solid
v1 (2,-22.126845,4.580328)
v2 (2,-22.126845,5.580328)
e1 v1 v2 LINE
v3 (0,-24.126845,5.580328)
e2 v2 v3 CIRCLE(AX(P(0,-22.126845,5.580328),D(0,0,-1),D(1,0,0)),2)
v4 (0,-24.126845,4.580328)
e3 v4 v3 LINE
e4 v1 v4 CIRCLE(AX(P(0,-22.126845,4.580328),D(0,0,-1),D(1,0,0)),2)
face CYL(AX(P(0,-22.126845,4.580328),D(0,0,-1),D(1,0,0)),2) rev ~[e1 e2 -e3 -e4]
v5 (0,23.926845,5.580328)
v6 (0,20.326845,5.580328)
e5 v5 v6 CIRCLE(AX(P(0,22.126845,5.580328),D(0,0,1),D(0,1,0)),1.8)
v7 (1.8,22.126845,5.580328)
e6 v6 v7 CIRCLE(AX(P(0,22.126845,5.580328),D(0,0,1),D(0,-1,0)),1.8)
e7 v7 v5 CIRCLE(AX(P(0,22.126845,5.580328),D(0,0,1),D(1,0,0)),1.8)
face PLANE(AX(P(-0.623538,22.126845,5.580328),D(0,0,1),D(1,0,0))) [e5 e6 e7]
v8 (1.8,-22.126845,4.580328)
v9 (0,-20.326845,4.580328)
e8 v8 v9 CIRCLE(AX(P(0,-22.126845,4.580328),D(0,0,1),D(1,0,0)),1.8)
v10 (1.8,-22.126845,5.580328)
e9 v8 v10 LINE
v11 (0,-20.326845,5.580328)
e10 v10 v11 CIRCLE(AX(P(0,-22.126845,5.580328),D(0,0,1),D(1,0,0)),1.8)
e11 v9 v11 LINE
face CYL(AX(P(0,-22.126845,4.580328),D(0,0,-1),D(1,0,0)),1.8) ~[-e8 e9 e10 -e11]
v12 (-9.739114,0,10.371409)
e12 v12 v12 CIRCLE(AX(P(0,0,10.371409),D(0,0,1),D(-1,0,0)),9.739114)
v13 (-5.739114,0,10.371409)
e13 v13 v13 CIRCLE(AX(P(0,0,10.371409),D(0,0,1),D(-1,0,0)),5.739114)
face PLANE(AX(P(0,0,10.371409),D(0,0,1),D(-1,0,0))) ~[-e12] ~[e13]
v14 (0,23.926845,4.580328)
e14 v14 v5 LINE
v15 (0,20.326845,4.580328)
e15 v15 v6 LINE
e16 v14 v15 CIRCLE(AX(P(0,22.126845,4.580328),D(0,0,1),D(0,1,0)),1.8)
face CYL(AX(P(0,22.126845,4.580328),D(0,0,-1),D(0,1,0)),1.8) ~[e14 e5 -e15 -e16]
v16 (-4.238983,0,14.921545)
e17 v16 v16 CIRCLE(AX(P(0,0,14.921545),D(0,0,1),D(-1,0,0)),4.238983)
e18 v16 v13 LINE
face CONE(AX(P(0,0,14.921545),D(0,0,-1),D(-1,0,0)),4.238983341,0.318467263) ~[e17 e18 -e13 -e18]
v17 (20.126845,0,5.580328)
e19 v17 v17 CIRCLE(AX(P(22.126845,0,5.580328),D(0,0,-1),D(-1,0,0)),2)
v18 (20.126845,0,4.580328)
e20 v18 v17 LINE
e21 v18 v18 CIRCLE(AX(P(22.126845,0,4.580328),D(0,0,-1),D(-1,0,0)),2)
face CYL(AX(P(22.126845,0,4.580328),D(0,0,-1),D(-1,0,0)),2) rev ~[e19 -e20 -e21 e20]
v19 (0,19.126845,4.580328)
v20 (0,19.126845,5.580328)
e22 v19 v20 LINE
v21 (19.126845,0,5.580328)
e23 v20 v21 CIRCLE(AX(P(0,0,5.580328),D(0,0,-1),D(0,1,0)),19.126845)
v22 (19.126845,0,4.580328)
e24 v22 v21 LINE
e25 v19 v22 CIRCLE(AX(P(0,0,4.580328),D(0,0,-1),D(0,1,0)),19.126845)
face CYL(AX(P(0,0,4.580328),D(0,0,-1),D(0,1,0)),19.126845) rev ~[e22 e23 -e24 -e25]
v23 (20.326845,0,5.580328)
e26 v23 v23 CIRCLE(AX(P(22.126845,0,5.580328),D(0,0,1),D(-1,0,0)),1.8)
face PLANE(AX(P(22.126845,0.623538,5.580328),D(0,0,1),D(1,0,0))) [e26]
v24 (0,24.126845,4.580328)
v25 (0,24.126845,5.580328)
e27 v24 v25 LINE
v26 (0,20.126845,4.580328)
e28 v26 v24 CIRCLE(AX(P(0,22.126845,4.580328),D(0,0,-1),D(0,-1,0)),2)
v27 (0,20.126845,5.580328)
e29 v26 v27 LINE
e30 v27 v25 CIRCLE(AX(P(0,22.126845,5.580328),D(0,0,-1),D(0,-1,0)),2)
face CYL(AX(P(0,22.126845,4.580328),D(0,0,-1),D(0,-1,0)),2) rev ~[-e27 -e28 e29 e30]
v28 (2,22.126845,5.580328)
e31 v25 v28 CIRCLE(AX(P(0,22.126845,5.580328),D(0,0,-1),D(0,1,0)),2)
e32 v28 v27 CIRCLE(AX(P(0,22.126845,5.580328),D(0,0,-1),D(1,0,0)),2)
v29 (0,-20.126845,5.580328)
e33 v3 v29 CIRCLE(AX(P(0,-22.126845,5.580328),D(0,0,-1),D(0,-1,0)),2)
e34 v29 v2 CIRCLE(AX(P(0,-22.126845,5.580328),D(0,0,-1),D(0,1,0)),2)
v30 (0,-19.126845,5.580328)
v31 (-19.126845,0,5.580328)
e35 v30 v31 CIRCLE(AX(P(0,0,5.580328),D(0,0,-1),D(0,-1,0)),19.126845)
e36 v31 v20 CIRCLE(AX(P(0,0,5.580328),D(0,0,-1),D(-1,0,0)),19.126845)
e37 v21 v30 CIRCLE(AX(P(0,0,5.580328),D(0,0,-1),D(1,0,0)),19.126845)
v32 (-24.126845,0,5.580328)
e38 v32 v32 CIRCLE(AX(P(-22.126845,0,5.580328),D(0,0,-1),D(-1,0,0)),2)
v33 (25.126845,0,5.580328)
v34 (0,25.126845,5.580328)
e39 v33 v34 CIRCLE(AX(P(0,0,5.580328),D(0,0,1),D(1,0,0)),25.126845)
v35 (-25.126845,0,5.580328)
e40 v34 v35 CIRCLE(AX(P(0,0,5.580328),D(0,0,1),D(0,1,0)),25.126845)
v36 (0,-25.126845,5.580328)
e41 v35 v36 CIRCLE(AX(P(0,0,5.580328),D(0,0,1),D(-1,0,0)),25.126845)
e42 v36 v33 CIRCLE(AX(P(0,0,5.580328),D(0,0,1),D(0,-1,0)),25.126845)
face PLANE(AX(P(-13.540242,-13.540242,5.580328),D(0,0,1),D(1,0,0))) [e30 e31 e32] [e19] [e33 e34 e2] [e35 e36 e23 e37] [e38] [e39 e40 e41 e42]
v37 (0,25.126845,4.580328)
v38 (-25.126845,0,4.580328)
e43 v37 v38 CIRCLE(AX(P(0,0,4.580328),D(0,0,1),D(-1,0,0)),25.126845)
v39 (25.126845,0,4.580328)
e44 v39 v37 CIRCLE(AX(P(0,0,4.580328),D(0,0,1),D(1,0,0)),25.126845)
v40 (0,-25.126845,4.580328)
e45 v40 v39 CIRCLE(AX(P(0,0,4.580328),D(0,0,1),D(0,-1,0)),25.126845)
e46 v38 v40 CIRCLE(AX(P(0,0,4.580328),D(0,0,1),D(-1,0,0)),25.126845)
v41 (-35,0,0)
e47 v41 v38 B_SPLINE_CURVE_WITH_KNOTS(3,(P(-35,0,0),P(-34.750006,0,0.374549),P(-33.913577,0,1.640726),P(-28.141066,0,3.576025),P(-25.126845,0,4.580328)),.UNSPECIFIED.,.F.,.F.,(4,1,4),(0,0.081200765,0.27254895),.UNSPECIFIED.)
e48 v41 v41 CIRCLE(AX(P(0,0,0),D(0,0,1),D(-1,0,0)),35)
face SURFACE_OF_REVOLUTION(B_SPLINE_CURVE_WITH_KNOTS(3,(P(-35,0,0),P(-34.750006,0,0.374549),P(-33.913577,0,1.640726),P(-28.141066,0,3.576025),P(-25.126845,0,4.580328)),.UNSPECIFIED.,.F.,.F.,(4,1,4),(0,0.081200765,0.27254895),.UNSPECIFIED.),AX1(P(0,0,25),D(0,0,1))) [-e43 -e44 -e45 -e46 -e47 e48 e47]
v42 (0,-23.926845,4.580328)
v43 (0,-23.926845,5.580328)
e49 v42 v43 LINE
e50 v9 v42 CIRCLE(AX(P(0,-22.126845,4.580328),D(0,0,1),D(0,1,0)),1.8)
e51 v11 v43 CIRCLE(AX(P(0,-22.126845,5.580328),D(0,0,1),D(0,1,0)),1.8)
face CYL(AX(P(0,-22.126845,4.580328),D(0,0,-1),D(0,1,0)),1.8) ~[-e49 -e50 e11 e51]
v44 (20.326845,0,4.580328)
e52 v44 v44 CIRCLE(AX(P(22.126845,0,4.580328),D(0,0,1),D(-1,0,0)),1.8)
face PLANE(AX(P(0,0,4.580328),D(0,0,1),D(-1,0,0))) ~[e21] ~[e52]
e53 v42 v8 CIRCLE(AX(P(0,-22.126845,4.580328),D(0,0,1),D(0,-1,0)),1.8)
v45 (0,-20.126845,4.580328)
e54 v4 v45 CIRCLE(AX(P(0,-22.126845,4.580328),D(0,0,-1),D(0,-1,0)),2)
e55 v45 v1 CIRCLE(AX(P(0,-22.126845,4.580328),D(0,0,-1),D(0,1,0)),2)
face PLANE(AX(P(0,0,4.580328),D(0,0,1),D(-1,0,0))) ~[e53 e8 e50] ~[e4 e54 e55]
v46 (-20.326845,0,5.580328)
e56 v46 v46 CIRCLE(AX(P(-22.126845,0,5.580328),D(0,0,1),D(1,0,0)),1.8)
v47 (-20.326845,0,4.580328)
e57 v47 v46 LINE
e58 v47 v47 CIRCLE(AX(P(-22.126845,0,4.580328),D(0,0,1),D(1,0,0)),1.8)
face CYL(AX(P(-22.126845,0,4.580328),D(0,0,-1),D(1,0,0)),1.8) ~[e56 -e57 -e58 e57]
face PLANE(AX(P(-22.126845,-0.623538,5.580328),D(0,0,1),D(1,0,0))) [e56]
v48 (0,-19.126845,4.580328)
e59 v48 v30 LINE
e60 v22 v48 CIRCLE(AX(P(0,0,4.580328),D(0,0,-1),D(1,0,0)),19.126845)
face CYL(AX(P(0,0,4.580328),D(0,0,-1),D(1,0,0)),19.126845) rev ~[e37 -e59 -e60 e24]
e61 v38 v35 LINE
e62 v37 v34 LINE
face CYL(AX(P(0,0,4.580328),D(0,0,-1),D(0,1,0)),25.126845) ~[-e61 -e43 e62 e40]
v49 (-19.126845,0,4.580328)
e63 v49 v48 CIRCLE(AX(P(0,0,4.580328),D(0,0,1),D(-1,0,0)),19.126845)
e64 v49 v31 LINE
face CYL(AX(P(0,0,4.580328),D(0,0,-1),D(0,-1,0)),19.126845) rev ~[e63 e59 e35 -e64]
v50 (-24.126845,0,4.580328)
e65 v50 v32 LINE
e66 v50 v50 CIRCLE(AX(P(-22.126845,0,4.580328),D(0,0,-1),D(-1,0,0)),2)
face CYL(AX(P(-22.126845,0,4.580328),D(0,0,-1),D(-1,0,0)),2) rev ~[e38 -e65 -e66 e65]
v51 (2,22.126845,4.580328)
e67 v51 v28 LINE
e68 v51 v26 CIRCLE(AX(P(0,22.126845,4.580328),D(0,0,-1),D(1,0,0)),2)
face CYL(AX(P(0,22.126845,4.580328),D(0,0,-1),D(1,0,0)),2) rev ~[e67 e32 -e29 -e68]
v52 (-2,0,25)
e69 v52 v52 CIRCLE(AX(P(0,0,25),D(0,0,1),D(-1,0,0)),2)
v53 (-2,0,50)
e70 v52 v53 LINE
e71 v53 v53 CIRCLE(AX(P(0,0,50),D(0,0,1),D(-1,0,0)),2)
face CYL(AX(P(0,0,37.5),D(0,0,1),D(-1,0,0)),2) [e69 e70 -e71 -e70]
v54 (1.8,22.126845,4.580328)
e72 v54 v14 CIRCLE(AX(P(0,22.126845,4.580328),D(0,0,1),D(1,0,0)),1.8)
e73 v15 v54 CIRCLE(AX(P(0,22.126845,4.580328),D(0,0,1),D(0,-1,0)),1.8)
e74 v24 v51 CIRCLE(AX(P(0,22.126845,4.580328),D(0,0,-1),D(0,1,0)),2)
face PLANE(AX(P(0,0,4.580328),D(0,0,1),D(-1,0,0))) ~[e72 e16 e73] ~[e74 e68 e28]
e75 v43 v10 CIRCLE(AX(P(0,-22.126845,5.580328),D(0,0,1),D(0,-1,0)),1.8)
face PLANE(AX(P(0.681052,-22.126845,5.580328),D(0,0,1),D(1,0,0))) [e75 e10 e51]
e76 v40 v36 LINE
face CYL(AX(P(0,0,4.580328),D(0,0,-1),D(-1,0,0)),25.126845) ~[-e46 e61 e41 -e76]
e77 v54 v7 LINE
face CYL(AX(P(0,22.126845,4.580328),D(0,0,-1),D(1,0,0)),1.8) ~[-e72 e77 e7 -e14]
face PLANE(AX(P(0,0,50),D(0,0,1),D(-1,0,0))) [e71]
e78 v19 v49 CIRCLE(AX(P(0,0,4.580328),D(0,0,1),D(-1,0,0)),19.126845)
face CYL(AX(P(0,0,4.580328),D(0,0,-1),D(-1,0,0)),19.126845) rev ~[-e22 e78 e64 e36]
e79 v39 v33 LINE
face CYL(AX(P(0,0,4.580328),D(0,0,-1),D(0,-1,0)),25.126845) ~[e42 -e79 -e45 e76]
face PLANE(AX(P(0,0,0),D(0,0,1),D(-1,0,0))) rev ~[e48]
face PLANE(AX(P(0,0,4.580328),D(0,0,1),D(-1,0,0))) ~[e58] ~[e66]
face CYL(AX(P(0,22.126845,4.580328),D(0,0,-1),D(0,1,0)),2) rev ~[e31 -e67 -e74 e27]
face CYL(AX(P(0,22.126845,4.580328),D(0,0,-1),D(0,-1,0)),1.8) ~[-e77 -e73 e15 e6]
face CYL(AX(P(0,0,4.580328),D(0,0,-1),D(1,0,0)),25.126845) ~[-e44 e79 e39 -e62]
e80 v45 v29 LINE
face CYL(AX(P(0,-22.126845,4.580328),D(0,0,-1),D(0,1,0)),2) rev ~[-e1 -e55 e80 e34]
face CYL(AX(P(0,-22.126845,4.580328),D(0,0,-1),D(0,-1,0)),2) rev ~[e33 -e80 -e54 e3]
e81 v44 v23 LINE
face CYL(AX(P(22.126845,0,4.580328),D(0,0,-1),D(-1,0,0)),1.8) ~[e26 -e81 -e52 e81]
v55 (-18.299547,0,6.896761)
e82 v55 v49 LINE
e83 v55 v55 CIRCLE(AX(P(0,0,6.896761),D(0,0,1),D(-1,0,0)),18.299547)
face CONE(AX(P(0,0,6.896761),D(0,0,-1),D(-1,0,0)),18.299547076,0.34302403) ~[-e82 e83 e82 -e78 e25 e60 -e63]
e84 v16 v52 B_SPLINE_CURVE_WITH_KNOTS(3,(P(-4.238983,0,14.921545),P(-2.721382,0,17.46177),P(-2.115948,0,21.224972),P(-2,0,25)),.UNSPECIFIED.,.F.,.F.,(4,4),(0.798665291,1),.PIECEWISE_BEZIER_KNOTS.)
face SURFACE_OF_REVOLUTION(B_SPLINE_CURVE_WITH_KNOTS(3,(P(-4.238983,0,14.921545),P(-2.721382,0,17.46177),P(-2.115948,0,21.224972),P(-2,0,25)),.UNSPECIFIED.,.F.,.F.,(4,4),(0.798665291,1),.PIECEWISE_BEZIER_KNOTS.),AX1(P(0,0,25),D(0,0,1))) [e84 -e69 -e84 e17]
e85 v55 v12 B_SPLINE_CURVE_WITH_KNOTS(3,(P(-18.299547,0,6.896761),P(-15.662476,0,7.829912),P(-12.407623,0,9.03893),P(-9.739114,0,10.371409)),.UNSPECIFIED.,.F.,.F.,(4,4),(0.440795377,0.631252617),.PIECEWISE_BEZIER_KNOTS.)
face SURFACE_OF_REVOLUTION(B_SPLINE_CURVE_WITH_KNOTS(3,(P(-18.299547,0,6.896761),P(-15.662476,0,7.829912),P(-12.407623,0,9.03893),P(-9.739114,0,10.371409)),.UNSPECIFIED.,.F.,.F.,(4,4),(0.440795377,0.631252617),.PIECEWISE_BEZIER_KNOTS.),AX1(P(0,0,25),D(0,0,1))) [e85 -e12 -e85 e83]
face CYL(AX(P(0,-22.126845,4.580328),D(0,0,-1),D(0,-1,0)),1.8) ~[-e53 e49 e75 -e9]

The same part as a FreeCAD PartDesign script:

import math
import FreeCAD as App
import Part
import Sketcher

V = App.Vector

doc = App.newDocument("Part")
params = doc.addObject("Spreadsheet::Sheet", "Params")
for row, (alias, value) in enumerate([
    ("sketch1_width", "4 mm"),
    ("sketch1_width2", "6 mm"),
    ("sketch1_height", "25 mm"),
    ("revolution_angle", "360 deg"),
    ("sketch2_diameter", "4 mm"),
    ("sketch2_diameter2", "3.6 mm"),
    ("pad1_length", "1 mm"),
], start=1):
    params.set(f"A{row}", alias)
    params.set(f"B{row}", "=" + value)
    params.setAlias(f"B{row}", alias)

body = doc.addObject("PartDesign::Body", "Body")

sketch1 = body.newObject("Sketcher::SketchObject", "Sketch")
sketch1.AttachmentSupport = (doc.getObject("XZ_Plane"), [""])
sketch1.MapMode = "FlatFace"
sketch1.addGeometry([
    Part.LineSegment(V(-2, 50, 0), V(-2, 25, 0)),
    Part.BSplineCurve([V(-4.238983, 14.921545, 0), V(-2.721382, 17.46177, 0), V(-2.115948, 21.224972, 0), V(-2, 25, 0)], [4, 4], [0.798665291, 1], False, 3, [1, 1, 1, 1], False),
    Part.LineSegment(V(-4.238983, 14.921545, 0), V(-5.739114, 10.371409, 0)),
    Part.LineSegment(V(-5.739114, 10.371409, 0), V(-9.739114, 10.371409, 0)),
    Part.BSplineCurve([V(-18.299547, 6.896761, 0), V(-15.662476, 7.829912, 0), V(-12.407623, 9.03893, 0), V(-9.739114, 10.371409, 0)], [4, 4], [0.440795377, 0.631252617], False, 3, [1, 1, 1, 1], False),
    Part.LineSegment(V(-18.299547, 6.896761, 0), V(-19.126845, 4.580328, 0)),
    Part.LineSegment(V(-19.126845, 4.580328, 0), V(-25.126845, 4.580328, 0)),
    Part.BSplineCurve([V(-35, 0, 0), V(-34.750006, 0.374549, 0), V(-33.913577, 1.640726, 0), V(-28.141066, 3.576025, 0), V(-25.126845, 4.580328, 0)], [4, 1, 4], [0, 0.081200765, 0.27254895], False, 3, [1, 1, 1, 1, 1], False),
    Part.LineSegment(V(-35, 0, 0), V(0, 0, 0)),
    Part.LineSegment(V(0, 0, 0), V(0, 50, 0)),
    Part.LineSegment(V(0, 50, 0), V(-2, 50, 0)),
], False)
sketch1.addConstraint([
    Sketcher.Constraint("Block", 1),
    Sketcher.Constraint("Block", 4),
    Sketcher.Constraint("Block", 7),
    Sketcher.Constraint("Coincident", 0, 2, 1, 2),
    Sketcher.Constraint("Coincident", 1, 1, 2, 1),
    Sketcher.Constraint("Coincident", 2, 2, 3, 1),
    Sketcher.Constraint("Coincident", 3, 2, 4, 2),
    Sketcher.Constraint("Coincident", 4, 1, 5, 1),
    Sketcher.Constraint("Coincident", 5, 2, 6, 1),
    Sketcher.Constraint("Coincident", 6, 2, 7, 2),
    Sketcher.Constraint("Coincident", 7, 1, 8, 1),
    Sketcher.Constraint("Coincident", 8, 2, 9, 1),
    Sketcher.Constraint("Coincident", 9, 2, 10, 1),
    Sketcher.Constraint("Coincident", 10, 2, 0, 1),
    Sketcher.Constraint("Vertical", 0),
    Sketcher.Constraint("Horizontal", 3),
    Sketcher.Constraint("Horizontal", 6),
    Sketcher.Constraint("Horizontal", 8),
    Sketcher.Constraint("Vertical", 9),
    Sketcher.Constraint("Horizontal", 10),
    Sketcher.Constraint("PointOnObject", 9, 2, -2),
    Sketcher.Constraint("DistanceX", 3, 2, 3, 1, 4.0),
    Sketcher.Constraint("DistanceX", 6, 2, 6, 1, 6.0),
    Sketcher.Constraint("DistanceY", 0, 2, 0, 1, 25.0),
])
sketch1.setExpression("Constraints[21]", "Params.sketch1_width")
sketch1.setExpression("Constraints[22]", "Params.sketch1_width2")
sketch1.setExpression("Constraints[23]", "Params.sketch1_height")
revolution = body.newObject("PartDesign::Revolution", "Revolution")
revolution.Profile = sketch1
revolution.ReferenceAxis = (sketch1, ["V_Axis"])
revolution.setExpression("Angle", "Params.revolution_angle")

sketch2 = body.newObject("Sketcher::SketchObject", "Sketch001")
sketch2.AttachmentSupport = (doc.getObject("XY_Plane"), [""])
sketch2.MapMode = "FlatFace"
sketch2.AttachmentOffset = App.Placement(V(0, 0, 4.580328), App.Rotation())
sketch2.addGeometry([
    Part.ArcOfCircle(Part.Circle(V(0, 0, 0), V(0, 0, 1), 25.1), math.radians(180), math.radians(270)),
    Part.ArcOfCircle(Part.Circle(V(0, 0, 0), V(0, 0, 1), 25.1), math.radians(-90), math.radians(0)),
    Part.ArcOfCircle(Part.Circle(V(0, 0, 0), V(0, 0, 1), 25.1), math.radians(0), math.radians(90)),
    Part.ArcOfCircle(Part.Circle(V(0, 0, 0), V(0, 0, 1), 25.1), math.radians(90), math.radians(180)),
    Part.ArcOfCircle(Part.Circle(V(0, 0, 0), V(0, 0, 1), 19.1), math.radians(180), math.radians(270)),
    Part.ArcOfCircle(Part.Circle(V(0, 0, 0), V(0, 0, 1), 19.1), math.radians(90), math.radians(180)),
    Part.ArcOfCircle(Part.Circle(V(0, 0, 0), V(0, 0, 1), 19.1), math.radians(0), math.radians(90)),
    Part.ArcOfCircle(Part.Circle(V(0, 0, 0), V(0, 0, 1), 19.1), math.radians(-90), math.radians(0)),
    Part.Circle(V(-22.1, 0, 0), V(0, 0, 1), 2),
    Part.ArcOfCircle(Part.Circle(V(0, 22.1, 0), V(0, 0, 1), 2), math.radians(0), math.radians(90)),
    Part.ArcOfCircle(Part.Circle(V(0, 22.1, 0), V(0, 0, 1), 2), math.radians(-90), math.radians(0)),
    Part.ArcOfCircle(Part.Circle(V(0, 22.1, 0), V(0, 0, 1), 2), math.radians(90), math.radians(270)),
    Part.Circle(V(22.1, 0, 0), V(0, 0, 1), 2),
    Part.ArcOfCircle(Part.Circle(V(0, -22.1, 0), V(0, 0, 1), 2), math.radians(90), math.radians(270)),
    Part.ArcOfCircle(Part.Circle(V(0, -22.1, 0), V(0, 0, 1), 2), math.radians(0), math.radians(90)),
    Part.ArcOfCircle(Part.Circle(V(0, -22.1, 0), V(0, 0, 1), 2), math.radians(-90), math.radians(0)),
    Part.ArcOfCircle(Part.Circle(V(0, -22.1, 0), V(0, 0, 1), 1.8), math.radians(0), math.radians(90)),
    Part.ArcOfCircle(Part.Circle(V(0, -22.1, 0), V(0, 0, 1), 1.8), math.radians(90), math.radians(270)),
    Part.ArcOfCircle(Part.Circle(V(0, -22.1, 0), V(0, 0, 1), 1.8), math.radians(-90), math.radians(0)),
    Part.Circle(V(-22.1, 0, 0), V(0, 0, 1), 1.8),
    Part.Circle(V(22.1, 0, 0), V(0, 0, 1), 1.8),
    Part.ArcOfCircle(Part.Circle(V(0, 22.1, 0), V(0, 0, 1), 1.8), math.radians(90), math.radians(270)),
    Part.ArcOfCircle(Part.Circle(V(0, 22.1, 0), V(0, 0, 1), 1.8), math.radians(-90), math.radians(0)),
    Part.ArcOfCircle(Part.Circle(V(0, 22.1, 0), V(0, 0, 1), 1.8), math.radians(0), math.radians(90)),
], False)
sketch2.addConstraint([
    Sketcher.Constraint("Tangent", 0, 2, 1, 1),
    Sketcher.Constraint("Tangent", 1, 2, 2, 1),
    Sketcher.Constraint("Tangent", 2, 2, 3, 1),
    Sketcher.Constraint("Tangent", 3, 2, 0, 1),
    Sketcher.Constraint("Tangent", 4, 1, 5, 2),
    Sketcher.Constraint("Tangent", 5, 1, 6, 2),
    Sketcher.Constraint("Tangent", 6, 1, 7, 2),
    Sketcher.Constraint("Tangent", 7, 1, 4, 2),
    Sketcher.Constraint("Tangent", 9, 1, 10, 2),
    Sketcher.Constraint("Tangent", 10, 1, 11, 2),
    Sketcher.Constraint("Tangent", 11, 1, 9, 2),
    Sketcher.Constraint("Tangent", 13, 1, 14, 2),
    Sketcher.Constraint("Tangent", 14, 1, 15, 2),
    Sketcher.Constraint("Tangent", 15, 1, 13, 2),
    Sketcher.Constraint("Tangent", 16, 2, 17, 1),
    Sketcher.Constraint("Tangent", 17, 2, 18, 1),
    Sketcher.Constraint("Tangent", 18, 2, 16, 1),
    Sketcher.Constraint("Tangent", 21, 2, 22, 1),
    Sketcher.Constraint("Tangent", 22, 2, 23, 1),
    Sketcher.Constraint("Tangent", 23, 2, 21, 1),
    Sketcher.Constraint("Coincident", 0, 3, -1, 1),
    Sketcher.Constraint("Coincident", 4, 3, -1, 1),
    Sketcher.Constraint("Coincident", 16, 3, 13, 3),
    Sketcher.Constraint("Coincident", 19, 3, 8, 3),
    Sketcher.Constraint("Coincident", 20, 3, 12, 3),
    Sketcher.Constraint("Coincident", 21, 3, 9, 3),
    Sketcher.Constraint("Equal", 0, 1),
    Sketcher.Constraint("Equal", 4, 5),
    Sketcher.Constraint("Equal", 8, 9),
    Sketcher.Constraint("Equal", 11, 12),
    Sketcher.Constraint("Equal", 12, 13),
    Sketcher.Constraint("Equal", 18, 19),
    Sketcher.Constraint("Equal", 19, 20),
    Sketcher.Constraint("Equal", 20, 21),
    Sketcher.Constraint("Symmetric", 8, 3, 12, 3, -1, 1),
    Sketcher.Constraint("Symmetric", 9, 3, 13, 3, -1, 1),
    Sketcher.Constraint("Symmetric", 9, 1, 14, 1, -1),
    Sketcher.Constraint("PointOnObject", 8, 3, -1),
    Sketcher.Constraint("PointOnObject", 0, 2, -2),
    Sketcher.Constraint("PointOnObject", 1, 2, -1),
    Sketcher.Constraint("PointOnObject", 2, 2, -2),
    Sketcher.Constraint("PointOnObject", 3, 2, -1),
    Sketcher.Constraint("PointOnObject", 4, 1, -1),
    Sketcher.Constraint("PointOnObject", 5, 1, -2),
    Sketcher.Constraint("PointOnObject", 6, 1, -1),
    Sketcher.Constraint("PointOnObject", 7, 1, -2),
    Sketcher.Constraint("PointOnObject", 10, 1, -2),
    Sketcher.Constraint("PointOnObject", 11, 1, -2),
    Sketcher.Constraint("PointOnObject", 13, 1, -2),
    Sketcher.Constraint("PointOnObject", 15, 1, -2),
    Sketcher.Constraint("PointOnObject", 16, 2, -2),
    Sketcher.Constraint("PointOnObject", 17, 2, -2),
    Sketcher.Constraint("PointOnObject", 21, 2, -2),
    Sketcher.Constraint("PointOnObject", 23, 2, -2),
    Sketcher.Constraint("Horizontal", 23, 3, 9, 1),
    Sketcher.Constraint("Horizontal", 14, 1, 18, 2),
    Sketcher.Constraint("Horizontal", 9, 1, 22, 2),
    Sketcher.Constraint("Diameter", 8, 4.0),
    Sketcher.Constraint("Diameter", 19, 3.6),
    Sketcher.Constraint("DistanceY", 0, 2, 13, 3, 3.0),
    Sketcher.Constraint("DistanceX", 12, 3, 1, 2, 3.0),
    Sketcher.Constraint("DistanceX", 8, 3, 4, 1, 3.0),
    Sketcher.Constraint("Radius", 0, 25.126845),
])
sketch2.setExpression("Constraints[57]", "Params.sketch2_diameter")
sketch2.setExpression("Constraints[58]", "Params.sketch2_diameter2")
pad1 = body.newObject("PartDesign::Pad", "Pad")
pad1.Profile = sketch2
pad1.setExpression("Length", "Params.pad1_length")

doc.recompute()
